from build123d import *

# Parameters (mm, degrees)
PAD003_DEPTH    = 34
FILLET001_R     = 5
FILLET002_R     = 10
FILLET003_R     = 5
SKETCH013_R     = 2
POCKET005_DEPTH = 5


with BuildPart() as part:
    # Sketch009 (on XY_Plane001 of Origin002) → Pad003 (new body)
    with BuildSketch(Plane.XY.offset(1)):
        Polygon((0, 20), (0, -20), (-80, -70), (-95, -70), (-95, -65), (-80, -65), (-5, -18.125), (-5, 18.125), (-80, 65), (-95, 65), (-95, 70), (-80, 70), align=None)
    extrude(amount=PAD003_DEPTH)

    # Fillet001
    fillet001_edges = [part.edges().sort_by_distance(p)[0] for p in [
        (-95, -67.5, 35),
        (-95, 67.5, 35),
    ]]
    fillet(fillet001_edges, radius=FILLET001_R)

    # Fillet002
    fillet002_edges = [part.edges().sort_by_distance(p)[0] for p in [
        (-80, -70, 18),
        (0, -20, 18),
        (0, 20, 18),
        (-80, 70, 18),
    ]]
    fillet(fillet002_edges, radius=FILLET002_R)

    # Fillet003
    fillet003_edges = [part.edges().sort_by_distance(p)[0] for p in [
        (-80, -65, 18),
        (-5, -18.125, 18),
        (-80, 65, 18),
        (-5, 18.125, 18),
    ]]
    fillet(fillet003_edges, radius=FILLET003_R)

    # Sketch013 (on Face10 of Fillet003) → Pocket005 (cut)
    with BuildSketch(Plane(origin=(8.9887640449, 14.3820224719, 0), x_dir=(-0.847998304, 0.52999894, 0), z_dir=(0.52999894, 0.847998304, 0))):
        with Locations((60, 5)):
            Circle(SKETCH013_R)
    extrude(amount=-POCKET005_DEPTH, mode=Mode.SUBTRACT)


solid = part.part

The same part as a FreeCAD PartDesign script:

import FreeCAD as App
import Part
import Sketcher
Q = App.Units.Quantity


def edges_at(feature, points):
    """Names of the edges that pass closest to the given points."""
    edges = feature.Shape.Edges
    near = lambda p: min(range(len(edges)), key=lambda i: edges[i].distToShape(Part.Vertex(*p))[0])
    return sorted({f"Edge{near(p) + 1}" for p in points})

doc = App.newDocument("Part")
body = doc.addObject("PartDesign::Body", "Body")

# Sketch on XY plane
sketch1 = body.newObject("Sketcher::SketchObject", "Sketch")
sketch1.AttachmentSupport = (doc.getObject("XY_Plane"), [""])
sketch1.MapMode = "FlatFace"
sketch1.AttachmentOffset = App.Placement(App.Vector(0, 0, 1), App.Rotation())
sketch1.addGeometry(Part.LineSegment(App.Vector(0, -20, 0), App.Vector(0, 20, 0)), False)
sketch1.addGeometry(Part.LineSegment(App.Vector(0, 20, 0), App.Vector(-80, 70, 0)), False)
sketch1.addGeometry(Part.LineSegment(App.Vector(-80, 70, 0), App.Vector(-95, 70, 0)), False)
sketch1.addGeometry(Part.LineSegment(App.Vector(-95, 70, 0), App.Vector(-95, 65, 0)), False)
sketch1.addGeometry(Part.LineSegment(App.Vector(-95, 65, 0), App.Vector(-80, 65, 0)), False)
sketch1.addGeometry(Part.LineSegment(App.Vector(-80, 65, 0), App.Vector(-5, 18, 0)), False)
sketch1.addGeometry(Part.LineSegment(App.Vector(-5, 18, 0), App.Vector(-5, -18, 0)), False)
sketch1.addGeometry(Part.LineSegment(App.Vector(-5, -18, 0), App.Vector(-80, -65, 0)), False)
sketch1.addGeometry(Part.LineSegment(App.Vector(-80, -65, 0), App.Vector(-95, -65, 0)), False)
sketch1.addGeometry(Part.LineSegment(App.Vector(-95, -65, 0), App.Vector(-95, -70, 0)), False)
sketch1.addGeometry(Part.LineSegment(App.Vector(-95, -70, 0), App.Vector(-80, -70, 0)), False)
sketch1.addGeometry(Part.LineSegment(App.Vector(-80, -70, 0), App.Vector(0, -20, 0)), False)
sketch1.addConstraint(Sketcher.Constraint("Coincident", 0, 2, 1, 1))
sketch1.addConstraint(Sketcher.Constraint("Coincident", 1, 2, 2, 1))
sketch1.addConstraint(Sketcher.Constraint("Coincident", 2, 2, 3, 1))
sketch1.addConstraint(Sketcher.Constraint("Coincident", 3, 2, 4, 1))
sketch1.addConstraint(Sketcher.Constraint("Coincident", 4, 2, 5, 1))
sketch1.addConstraint(Sketcher.Constraint("Coincident", 5, 2, 6, 1))
sketch1.addConstraint(Sketcher.Constraint("Coincident", 6, 2, 7, 1))
sketch1.addConstraint(Sketcher.Constraint("Coincident", 7, 2, 8, 1))
sketch1.addConstraint(Sketcher.Constraint("Coincident", 8, 2, 9, 1))
sketch1.addConstraint(Sketcher.Constraint("Coincident", 9, 2, 10, 1))
sketch1.addConstraint(Sketcher.Constraint("Coincident", 10, 2, 11, 1))
sketch1.addConstraint(Sketcher.Constraint("Coincident", 11, 2, 0, 1))
sketch1.addConstraint(Sketcher.Constraint("Vertical", 0))
sketch1.addConstraint(Sketcher.Constraint("Horizontal", 2))
sketch1.addConstraint(Sketcher.Constraint("Vertical", 3))
sketch1.addConstraint(Sketcher.Constraint("Horizontal", 4))
sketch1.addConstraint(Sketcher.Constraint("Vertical", 6))
sketch1.addConstraint(Sketcher.Constraint("Horizontal", 8))
sketch1.addConstraint(Sketcher.Constraint("Vertical", 9))
sketch1.addConstraint(Sketcher.Constraint("Horizontal", 10))
sketch1.addConstraint(Sketcher.Constraint("Symmetric", 0, 2, 11, 2, -1, 1))
sketch1.addConstraint(Sketcher.Constraint("Symmetric", 4, 2, 7, 2, -1))
sketch1.addConstraint(Sketcher.Constraint("Symmetric", 2, 2, 9, 2, -1))
sketch1.addConstraint(Sketcher.Constraint("Parallel", 1, 5))
sketch1.addConstraint(Sketcher.Constraint("Parallel", 7, 11))
sketch1.addConstraint(Sketcher.Constraint("Vertical", 1, 2, 4, 2))
sketch1.addConstraint(Sketcher.Constraint("Vertical", 7, 2, 10, 2))
sketch1.addConstraint(Sketcher.Constraint("DistanceX", 2, 2, 2, 1, Q("15 mm")))
sketch1.addConstraint(Sketcher.Constraint("DistanceY", 0, 1, 0, 2, Q("40 mm")))
sketch1.addConstraint(Sketcher.Constraint("DistanceY", 3, 2, 3, 1, Q("5 mm")))
sketch1.addConstraint(Sketcher.Constraint("DistanceX", 1, 2, -1, 1, Q("80 mm")))
sketch1.addConstraint(Sketcher.Constraint("DistanceY", -1, 1, 1, 2, Q("70 mm")))
sketch1.addConstraint(Sketcher.Constraint("DistanceX", 5, 2, -1, 1, Q("5 mm")))
pad1 = body.newObject("PartDesign::Pad", "Pad")
pad1.Profile = sketch1
pad1.Length = 34
doc.recompute()

fillet = body.newObject("PartDesign::Fillet", "Fillet")
fillet.Base = (pad1, edges_at(pad1, [(-95, -67.5, 35), (-95, 67.5, 35)]))
fillet.Radius = 5
doc.recompute()

fillet2 = body.newObject("PartDesign::Fillet", "Fillet001")
fillet2.Base = (fillet, edges_at(fillet, [
    (-80, -70, 18),
    (0, -20, 18),
    (0, 20, 18),
    (-80, 70, 18),
]))
fillet2.Radius = 10
doc.recompute()

fillet3 = body.newObject("PartDesign::Fillet", "Fillet002")
fillet3.Base = (fillet2, edges_at(fillet2, [
    (-80, -65, 18),
    (-5, -18.125, 18),
    (-80, 65, 18),
    (-5, 18.125, 18),
]))
fillet3.Radius = 5

# Sketch on an angled plane
sketch2 = body.newObject("Sketcher::SketchObject", "Sketch001")
sketch2.Placement = App.Placement(App.Vector(8.988764, 14.382022, 0), App.Rotation(App.Vector(-0.847998304, 0.52999894, 0), App.Vector(0, 0, 1), App.Vector(0.52999894, 0.847998304, 0), "ZXY"))
sketch2.addGeometry(Part.Circle(App.Vector(60, 5, 0), App.Vector(0, 0, 1), 2), False)
sketch2.addConstraint(Sketcher.Constraint("Diameter", 0, Q("4 mm")))
sketch2.addConstraint(Sketcher.Constraint("DistanceX", -1, 1, 0, 3, Q("60 mm")))
sketch2.addConstraint(Sketcher.Constraint("DistanceY", -1, 1, 0, 3, Q("5 mm")))
pocket1 = body.newObject("PartDesign::Pocket", "Pocket")
pocket1.Profile = sketch2
pocket1.Length = 5

doc.recompute()
